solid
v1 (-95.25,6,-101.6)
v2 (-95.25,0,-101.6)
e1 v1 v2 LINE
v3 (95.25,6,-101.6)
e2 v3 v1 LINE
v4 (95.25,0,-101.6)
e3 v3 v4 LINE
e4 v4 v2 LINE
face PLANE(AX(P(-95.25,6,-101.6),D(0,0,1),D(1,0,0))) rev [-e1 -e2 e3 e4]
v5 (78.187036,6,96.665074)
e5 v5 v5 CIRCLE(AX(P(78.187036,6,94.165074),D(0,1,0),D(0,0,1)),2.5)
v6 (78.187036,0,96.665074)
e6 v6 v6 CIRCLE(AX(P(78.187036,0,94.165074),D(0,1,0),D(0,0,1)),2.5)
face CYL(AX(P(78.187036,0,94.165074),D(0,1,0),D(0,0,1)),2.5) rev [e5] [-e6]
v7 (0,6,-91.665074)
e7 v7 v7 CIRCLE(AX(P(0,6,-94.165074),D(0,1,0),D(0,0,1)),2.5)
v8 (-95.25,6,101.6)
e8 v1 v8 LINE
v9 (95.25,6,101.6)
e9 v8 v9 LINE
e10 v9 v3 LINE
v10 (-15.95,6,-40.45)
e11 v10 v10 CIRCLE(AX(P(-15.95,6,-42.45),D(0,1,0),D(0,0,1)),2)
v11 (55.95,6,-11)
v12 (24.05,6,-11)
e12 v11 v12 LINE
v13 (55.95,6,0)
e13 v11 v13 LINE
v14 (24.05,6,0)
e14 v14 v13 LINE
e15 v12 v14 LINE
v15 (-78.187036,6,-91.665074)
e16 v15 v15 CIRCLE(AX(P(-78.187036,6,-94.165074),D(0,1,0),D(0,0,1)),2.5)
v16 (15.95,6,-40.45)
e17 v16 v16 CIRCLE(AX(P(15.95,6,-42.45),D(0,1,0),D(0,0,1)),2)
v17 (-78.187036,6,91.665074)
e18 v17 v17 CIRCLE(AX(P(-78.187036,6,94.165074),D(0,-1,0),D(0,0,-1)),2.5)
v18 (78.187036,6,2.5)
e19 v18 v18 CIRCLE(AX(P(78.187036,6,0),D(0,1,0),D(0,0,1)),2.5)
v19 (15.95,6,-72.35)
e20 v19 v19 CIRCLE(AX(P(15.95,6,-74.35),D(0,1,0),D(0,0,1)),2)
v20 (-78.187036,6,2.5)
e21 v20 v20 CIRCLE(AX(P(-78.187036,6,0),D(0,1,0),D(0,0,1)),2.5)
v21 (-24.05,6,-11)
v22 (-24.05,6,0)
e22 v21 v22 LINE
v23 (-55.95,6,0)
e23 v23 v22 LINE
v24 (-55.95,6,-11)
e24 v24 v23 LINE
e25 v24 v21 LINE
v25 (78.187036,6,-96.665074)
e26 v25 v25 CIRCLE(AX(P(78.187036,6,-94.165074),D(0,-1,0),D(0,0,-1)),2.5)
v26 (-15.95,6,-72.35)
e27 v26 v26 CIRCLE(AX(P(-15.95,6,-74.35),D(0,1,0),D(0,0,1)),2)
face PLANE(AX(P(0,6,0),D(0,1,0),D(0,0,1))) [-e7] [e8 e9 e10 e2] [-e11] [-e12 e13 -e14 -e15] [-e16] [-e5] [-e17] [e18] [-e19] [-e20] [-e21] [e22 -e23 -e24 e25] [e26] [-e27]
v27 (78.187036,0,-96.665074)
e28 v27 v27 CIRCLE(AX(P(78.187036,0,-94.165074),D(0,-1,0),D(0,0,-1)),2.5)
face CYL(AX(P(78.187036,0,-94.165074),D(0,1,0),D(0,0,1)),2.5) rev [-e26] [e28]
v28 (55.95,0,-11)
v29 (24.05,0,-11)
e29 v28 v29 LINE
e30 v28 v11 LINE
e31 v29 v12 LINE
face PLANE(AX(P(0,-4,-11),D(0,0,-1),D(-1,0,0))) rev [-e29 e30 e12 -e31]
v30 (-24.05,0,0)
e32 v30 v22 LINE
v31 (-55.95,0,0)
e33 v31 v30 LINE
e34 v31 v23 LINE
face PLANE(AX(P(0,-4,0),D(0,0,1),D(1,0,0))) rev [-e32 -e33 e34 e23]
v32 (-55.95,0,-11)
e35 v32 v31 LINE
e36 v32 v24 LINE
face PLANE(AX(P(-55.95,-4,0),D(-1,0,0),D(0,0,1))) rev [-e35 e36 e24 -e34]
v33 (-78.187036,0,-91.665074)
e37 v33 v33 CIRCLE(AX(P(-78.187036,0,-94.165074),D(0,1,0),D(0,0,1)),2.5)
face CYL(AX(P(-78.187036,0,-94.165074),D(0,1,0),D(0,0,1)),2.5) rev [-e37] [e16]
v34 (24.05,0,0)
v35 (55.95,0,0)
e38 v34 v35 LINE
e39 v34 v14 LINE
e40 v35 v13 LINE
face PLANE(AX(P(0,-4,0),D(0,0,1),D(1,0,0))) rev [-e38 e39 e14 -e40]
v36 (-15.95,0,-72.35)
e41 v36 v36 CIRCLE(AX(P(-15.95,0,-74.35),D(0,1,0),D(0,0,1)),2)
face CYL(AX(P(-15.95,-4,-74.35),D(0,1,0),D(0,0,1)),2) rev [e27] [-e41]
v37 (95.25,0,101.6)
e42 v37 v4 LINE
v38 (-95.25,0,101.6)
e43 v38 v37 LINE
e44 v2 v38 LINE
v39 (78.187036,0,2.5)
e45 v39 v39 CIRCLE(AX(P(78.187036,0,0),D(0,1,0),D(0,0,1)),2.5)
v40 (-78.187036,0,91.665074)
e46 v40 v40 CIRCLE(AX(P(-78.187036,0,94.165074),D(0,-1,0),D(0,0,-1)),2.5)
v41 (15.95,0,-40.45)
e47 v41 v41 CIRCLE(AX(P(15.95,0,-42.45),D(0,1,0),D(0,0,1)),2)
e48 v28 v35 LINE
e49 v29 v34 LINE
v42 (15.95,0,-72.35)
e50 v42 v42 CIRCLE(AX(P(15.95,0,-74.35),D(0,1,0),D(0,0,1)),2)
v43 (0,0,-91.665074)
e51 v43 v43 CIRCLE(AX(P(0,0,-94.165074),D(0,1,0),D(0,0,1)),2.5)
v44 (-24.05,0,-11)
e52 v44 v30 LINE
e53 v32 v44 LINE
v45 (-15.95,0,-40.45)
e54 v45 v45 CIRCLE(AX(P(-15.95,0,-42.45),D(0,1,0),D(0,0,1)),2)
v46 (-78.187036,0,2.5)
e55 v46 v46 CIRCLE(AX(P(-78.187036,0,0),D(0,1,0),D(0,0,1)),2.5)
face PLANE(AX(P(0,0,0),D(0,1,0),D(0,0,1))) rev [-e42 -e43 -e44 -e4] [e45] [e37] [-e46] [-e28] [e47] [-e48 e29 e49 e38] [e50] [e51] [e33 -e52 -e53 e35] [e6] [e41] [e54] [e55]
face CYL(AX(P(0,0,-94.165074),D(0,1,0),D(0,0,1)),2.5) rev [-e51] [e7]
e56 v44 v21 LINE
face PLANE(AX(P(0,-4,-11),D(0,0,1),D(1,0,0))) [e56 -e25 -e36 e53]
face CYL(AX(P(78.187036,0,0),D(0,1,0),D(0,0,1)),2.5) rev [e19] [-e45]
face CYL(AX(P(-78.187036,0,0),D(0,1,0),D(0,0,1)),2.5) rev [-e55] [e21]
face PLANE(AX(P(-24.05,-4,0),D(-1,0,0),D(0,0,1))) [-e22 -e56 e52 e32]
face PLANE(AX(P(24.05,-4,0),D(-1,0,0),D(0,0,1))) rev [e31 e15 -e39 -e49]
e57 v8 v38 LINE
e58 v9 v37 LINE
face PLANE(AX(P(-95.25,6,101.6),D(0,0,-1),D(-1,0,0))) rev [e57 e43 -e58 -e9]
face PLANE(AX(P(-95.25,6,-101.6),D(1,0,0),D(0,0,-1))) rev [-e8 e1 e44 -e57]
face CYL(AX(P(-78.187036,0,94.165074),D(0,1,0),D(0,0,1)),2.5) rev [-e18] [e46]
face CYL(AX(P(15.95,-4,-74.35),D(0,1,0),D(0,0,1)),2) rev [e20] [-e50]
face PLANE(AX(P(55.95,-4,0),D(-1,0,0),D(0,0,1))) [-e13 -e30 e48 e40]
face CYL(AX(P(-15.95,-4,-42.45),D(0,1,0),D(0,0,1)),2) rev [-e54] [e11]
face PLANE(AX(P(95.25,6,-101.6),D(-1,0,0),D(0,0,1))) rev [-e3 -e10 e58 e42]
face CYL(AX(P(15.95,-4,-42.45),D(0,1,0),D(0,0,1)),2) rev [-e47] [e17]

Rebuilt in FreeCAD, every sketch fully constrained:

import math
import FreeCAD as App
import Part
import Sketcher

V = App.Vector

doc = App.newDocument("Part")
body = doc.addObject("PartDesign::Body", "Body")

sketch1 = doc.addObject("Sketcher::SketchObject", "Sketch")
body.addObject(sketch1)
sketch1.AttachmentSupport = (doc.XZ_Plane, [""])
sketch1.MapMode = "FlatFace"
sketch1.addGeometry([
    Part.LineSegment(V(-95, -102, 0), V(-95, 102, 0)),
    Part.LineSegment(V(-95, 102, 0), V(95, 102, 0)),
    Part.LineSegment(V(95, 102, 0), V(95, -102, 0)),
    Part.LineSegment(V(95, -102, 0), V(-95, -102, 0)),
], False)
sketch1.addConstraint([
    Sketcher.Constraint("Coincident", 0, 2, 1, 1),
    Sketcher.Constraint("Coincident", 1, 2, 2, 1),
    Sketcher.Constraint("Coincident", 2, 2, 3, 1),
    Sketcher.Constraint("Coincident", 3, 2, 0, 1),
    Sketcher.Constraint("Vertical", 0),
    Sketcher.Constraint("Horizontal", 1),
    Sketcher.Constraint("Vertical", 2),
    Sketcher.Constraint("Horizontal", 3),
    Sketcher.Constraint("Symmetric", 0, 2, 2, 2, -1, 1),
    Sketcher.Constraint("DistanceX", 1, 1, 1, 2, 190.5),
    Sketcher.Constraint("DistanceY", 0, 1, 0, 2, 203.2),
])
pad1 = doc.addObject("PartDesign::Pad", "Pad")
body.addObject(pad1)
pad1.Profile = sketch1
pad1.Length = 6
pad1.Reversed = True

sketch2 = doc.addObject("Sketcher::SketchObject", "Sketch001")
body.addObject(sketch2)
sketch2.AttachmentSupport = (doc.XZ_Plane, [""])
sketch2.MapMode = "FlatFace"
sketch2.AttachmentOffset = App.Placement(V(0, 0, -6), App.Rotation())
sketch2.addGeometry([
    Part.Circle(V(-78.2, -94.2, 0), V(0, 0, 1), 2.5),
    Part.Circle(V(0, -94.2, 0), V(0, 0, 1), 2.5),
    Part.Circle(V(78.2, 0, 0), V(0, 0, 1), 2.5),
    Part.Circle(V(-78.2, 0, 0), V(0, 0, 1), 2.5),
    Part.Circle(V(78.2, -94.2, 0), V(0, 0, 1), 2.5),
    Part.Circle(V(-78.2, 94.2, 0), V(0, 0, 1), 2.5),
    Part.Circle(V(78.2, 94.2, 0), V(0, 0, 1), 2.5),
], False)
sketch2.addConstraint([
    Sketcher.Constraint("Equal", 0, 1),
    Sketcher.Constraint("Equal", 1, 2),
    Sketcher.Constraint("Equal", 2, 3),
    Sketcher.Constraint("Equal", 3, 4),
    Sketcher.Constraint("Equal", 4, 5),
    Sketcher.Constraint("Equal", 5, 6),
    Sketcher.Constraint("Symmetric", 2, 3, 3, 3, -1, 1),
    Sketcher.Constraint("Symmetric", 4, 3, 5, 3, -1, 1),
    Sketcher.Constraint("Symmetric", 0, 3, 6, 3, -1, 1),
    Sketcher.Constraint("Symmetric", 0, 3, 4, 3, -2),
    Sketcher.Constraint("PointOnObject", 1, 3, -2),
    Sketcher.Constraint("PointOnObject", 2, 3, -1),
    Sketcher.Constraint("Horizontal", 0, 3, 1, 3),
    Sketcher.Constraint("Vertical", 0, 3, 3, 3),
    Sketcher.Constraint("Diameter", 0, 5.0),
    Sketcher.Constraint("DistanceX", 0, 3, -1, 1, 78.187036),
    Sketcher.Constraint("DistanceY", 0, 3, -1, 1, 94.165074),
])
pocket1 = doc.addObject("PartDesign::Pocket", "Pocket")
body.addObject(pocket1)
pocket1.Profile = sketch2
pocket1.Type = "ThroughAll"
pocket1.Reversed = True

sketch3 = doc.addObject("Sketcher::SketchObject", "Sketch002")
body.addObject(sketch3)
sketch3.AttachmentSupport = (doc.XZ_Plane, [""])
sketch3.MapMode = "FlatFace"
sketch3.AttachmentOffset = App.Placement(V(0, 0, -6), App.Rotation())
sketch3.addGeometry([
    Part.ArcOfCircle(Part.Circle(V(-15.9, -74.3, 0), V(0, 0, 1), 2), math.radians(90), math.radians(360)),
    Part.ArcOfCircle(Part.Circle(V(-16, -74.4, 0), V(0, 0, 1), 2), math.radians(0), math.radians(90)),
    Part.ArcOfCircle(Part.Circle(V(16, -74.4, 0), V(0, 0, 1), 2), math.radians(90), math.radians(180)),
    Part.ArcOfCircle(Part.Circle(V(15.9, -74.4, 0), V(0, 0, 1), 2), math.radians(0), math.radians(90)),
    Part.ArcOfCircle(Part.Circle(V(15.9, -74.3, 0), V(0, 0, 1), 2), math.radians(180), math.radians(360)),
    Part.ArcOfCircle(Part.Circle(V(-16, -42.4, 0), V(0, 0, 1), 2), math.radians(-90), math.radians(0)),
    Part.ArcOfCircle(Part.Circle(V(-15.9, -42.5, 0), V(0, 0, 1), 2), math.radians(90), math.radians(270)),
    Part.ArcOfCircle(Part.Circle(V(-16, -42.5, 0), V(0, 0, 1), 2), math.radians(0), math.radians(90)),
    Part.ArcOfCircle(Part.Circle(V(16, -42.4, 0), V(0, 0, 1), 2), math.radians(-180), math.radians(-90)),
    Part.ArcOfCircle(Part.Circle(V(15.9, -42.5, 0), V(0, 0, 1), 2), math.radians(0), math.radians(180)),
    Part.ArcOfCircle(Part.Circle(V(15.9, -42.4, 0), V(0, 0, 1), 2), math.radians(-90), math.radians(0)),
    Part.LineSegment(V(-56, -11, 0), V(-56, 0, 0)),
    Part.LineSegment(V(-56, 0, 0), V(-24.1, 0, 0)),
    Part.LineSegment(V(-24.1, 0, 0), V(-24.1, -11, 0)),
    Part.LineSegment(V(-24.1, -11, 0), V(-56, -11, 0)),
    Part.LineSegment(V(56, 0, 0), V(56, -11, 0)),
    Part.LineSegment(V(56, -11, 0), V(24.1, -11, 0)),
    Part.LineSegment(V(24.1, -11, 0), V(24.1, 0, 0)),
    Part.LineSegment(V(24.1, 0, 0), V(56, 0, 0)),
], False)
sketch3.addConstraint([
    Sketcher.Constraint("Tangent", 0, 1, 1, 2),
    Sketcher.Constraint("Coincident", 1, 1, 0, 2),
    Sketcher.Constraint("Tangent", 2, 1, 3, 2),
    Sketcher.Constraint("Tangent", 3, 1, 4, 2),
    Sketcher.Constraint("Tangent", 4, 1, 2, 2),
    Sketcher.Constraint("Tangent", 5, 1, 6, 2),
    Sketcher.Constraint("Tangent", 6, 1, 7, 2),
    Sketcher.Constraint("Tangent", 7, 1, 5, 2),
    Sketcher.Constraint("Tangent", 8, 1, 9, 2),
    Sketcher.Constraint("Tangent", 9, 1, 10, 2),
    Sketcher.Constraint("Tangent", 10, 1, 8, 2),
    Sketcher.Constraint("Coincident", 11, 2, 12, 1),
    Sketcher.Constraint("Coincident", 12, 2, 13, 1),
    Sketcher.Constraint("Coincident", 13, 2, 14, 1),
    Sketcher.Constraint("Coincident", 14, 2, 11, 1),
    Sketcher.Constraint("Coincident", 15, 2, 16, 1),
    Sketcher.Constraint("Coincident", 16, 2, 17, 1),
    Sketcher.Constraint("Coincident", 17, 2, 18, 1),
    Sketcher.Constraint("Coincident", 18, 2, 15, 1),
    Sketcher.Constraint("Vertical", 11),
    Sketcher.Constraint("Horizontal", 12),
    Sketcher.Constraint("Vertical", 13),
    Sketcher.Constraint("Horizontal", 14),
    Sketcher.Constraint("Vertical", 15),
    Sketcher.Constraint("Horizontal", 16),
    Sketcher.Constraint("Vertical", 17),
    Sketcher.Constraint("Horizontal", 18),
    Sketcher.Constraint("Equal", 1, 2),
    Sketcher.Constraint("Equal", 4, 5),
    Sketcher.Constraint("Equal", 7, 8),
    Sketcher.Constraint("Symmetric", 12, 2, 17, 2, -1, 1),
    Sketcher.Constraint("Symmetric", 0, 3, 2, 3, -2),
    Sketcher.Constraint("Symmetric", 5, 3, 8, 3, -2),
    Sketcher.Constraint("Symmetric", 14, 2, 15, 2, -2),
    Sketcher.Constraint("PointOnObject", 11, 2, -1),
    Sketcher.Constraint("Horizontal", 4, 3, 1, 1),
    Sketcher.Constraint("Horizontal", 1, 1, 3, 1),
    Sketcher.Constraint("Horizontal", 3, 1, 4, 1),
    Sketcher.Constraint("Horizontal", 10, 3, 7, 1),
    Sketcher.Constraint("Horizontal", 7, 1, 8, 1),
    Sketcher.Constraint("Horizontal", 8, 1, 9, 1),
    Sketcher.Constraint("Vertical", 1, 3, 5, 3),
    Sketcher.Constraint("Vertical", 7, 3, 0, 1),
    Sketcher.Constraint("Vertical", 10, 3, 2, 1),
    Sketcher.Constraint("Vertical", 0, 1, 5, 1),
    Sketcher.Constraint("Vertical", 5, 1, 6, 1),
    Sketcher.Constraint("Vertical", 2, 1, 10, 1),
    Sketcher.Constraint("Radius", 0, 2.0),
    Sketcher.Constraint("DistanceY", 11, 1, 11, 2, 11.0),
    Sketcher.Constraint("DistanceX", 12, 1, 12, 2, 31.9),
    Sketcher.Constraint("DistanceX", 11, 2, 6, 1, 40.0),
    Sketcher.Constraint("DistanceX", 0, 3, 2, 3, 31.9),
    Sketcher.Constraint("DistanceY", 0, 3, 5, 3, 31.9),
    Sketcher.Constraint("DistanceY", 0, 3, -1, 1, 74.35),
])
pocket2 = doc.addObject("PartDesign::Pocket", "Pocket001")
body.addObject(pocket2)
pocket2.Profile = sketch3
pocket2.Length = 10
pocket2.Reversed = True

doc.recompute()
